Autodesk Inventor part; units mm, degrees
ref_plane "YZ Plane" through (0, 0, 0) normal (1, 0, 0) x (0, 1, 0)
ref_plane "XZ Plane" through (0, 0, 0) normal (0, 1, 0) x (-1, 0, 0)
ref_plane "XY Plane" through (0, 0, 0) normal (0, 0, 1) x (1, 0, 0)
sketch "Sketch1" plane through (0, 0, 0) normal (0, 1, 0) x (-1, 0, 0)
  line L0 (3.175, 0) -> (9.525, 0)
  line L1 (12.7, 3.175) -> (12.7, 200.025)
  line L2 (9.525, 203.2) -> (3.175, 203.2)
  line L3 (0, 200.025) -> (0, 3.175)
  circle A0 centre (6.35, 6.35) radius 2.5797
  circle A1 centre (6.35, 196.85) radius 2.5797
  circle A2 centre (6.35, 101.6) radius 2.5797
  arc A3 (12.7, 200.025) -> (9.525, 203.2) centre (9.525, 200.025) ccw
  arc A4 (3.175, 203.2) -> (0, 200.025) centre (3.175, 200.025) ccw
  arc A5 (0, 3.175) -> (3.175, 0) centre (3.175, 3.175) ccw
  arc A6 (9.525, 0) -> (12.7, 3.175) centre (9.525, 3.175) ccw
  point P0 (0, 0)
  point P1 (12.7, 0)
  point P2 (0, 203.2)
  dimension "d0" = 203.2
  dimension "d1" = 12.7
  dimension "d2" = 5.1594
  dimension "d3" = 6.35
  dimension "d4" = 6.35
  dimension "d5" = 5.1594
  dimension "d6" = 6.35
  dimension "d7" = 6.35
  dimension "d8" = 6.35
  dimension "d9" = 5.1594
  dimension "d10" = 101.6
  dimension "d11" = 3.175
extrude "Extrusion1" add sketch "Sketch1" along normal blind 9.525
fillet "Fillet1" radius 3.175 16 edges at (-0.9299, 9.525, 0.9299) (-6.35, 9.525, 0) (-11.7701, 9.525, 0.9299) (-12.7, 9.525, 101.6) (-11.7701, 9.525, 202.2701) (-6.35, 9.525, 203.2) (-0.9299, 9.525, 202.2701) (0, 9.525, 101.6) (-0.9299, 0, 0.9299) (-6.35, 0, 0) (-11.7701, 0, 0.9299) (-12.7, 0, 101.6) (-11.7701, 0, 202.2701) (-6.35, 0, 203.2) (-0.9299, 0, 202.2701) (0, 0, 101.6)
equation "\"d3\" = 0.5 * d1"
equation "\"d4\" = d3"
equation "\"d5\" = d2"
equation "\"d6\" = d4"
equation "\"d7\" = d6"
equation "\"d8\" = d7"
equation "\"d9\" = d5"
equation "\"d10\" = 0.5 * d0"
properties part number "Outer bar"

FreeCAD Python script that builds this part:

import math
import FreeCAD as App
import Part
import Sketcher

V = App.Vector
Q = App.Units.Quantity


def edges_at(feature, points):
    """Names of the edges that pass closest to the given points."""
    edges = feature.Shape.Edges
    near = lambda p: min(range(len(edges)), key=lambda i: edges[i].distToShape(Part.Vertex(*p))[0])
    return sorted({f"Edge{near(p) + 1}" for p in points})

doc = App.newDocument("Part")
params = doc.addObject("Spreadsheet::Sheet", "Params")
for row, (alias, value) in enumerate([
    ("sketch1_diameter", "0.203126 in"),
    ("sketch1_radius", "0.125 in"),
    ("sketch1_width", "0.25 in"),
    ("pad1_length", "0.375 in"),
    ("fillet_radius", "0.125 in"),
], start=1):
    params.set(f"A{row}", alias)
    params.set(f"B{row}", "=" + value)
    params.setAlias(f"B{row}", alias)

body = doc.addObject("PartDesign::Body", "Body")

# Sketch on XZ plane
sketch1 = body.newObject("Sketcher::SketchObject", "Sketch")
sketch1.AttachmentSupport = (doc.getObject("XZ_Plane"), [""])
sketch1.MapMode = "FlatFace"
sketch1.addGeometry([
    Part.ArcOfCircle(Part.Circle(V(-3.2, 3.2, 0), V(0, 0, 1), 3.2), math.radians(-90), math.radians(0)),  # 0
    Part.LineSegment(V(-3.2, 0, 0), V(-9.5, 0, 0)),  # 1
    Part.ArcOfCircle(Part.Circle(V(-9.5, 3.2, 0), V(0, 0, 1), 3.2), math.radians(180), math.radians(270)),  # 2
    Part.LineSegment(V(-12.7, 3.2, 0), V(-12.7, 200, 0)),  # 3
    Part.ArcOfCircle(Part.Circle(V(-9.5, 200, 0), V(0, 0, 1), 3.2), math.radians(90), math.radians(180)),  # 4
    Part.LineSegment(V(-9.5, 203.2, 0), V(-3.2, 203.2, 0)),  # 5
    Part.ArcOfCircle(Part.Circle(V(-3.2, 200, 0), V(0, 0, 1), 3.2), math.radians(0), math.radians(90)),  # 6
    Part.LineSegment(V(0, 200, 0), V(0, 3.2, 0)),  # 7
    Part.Circle(V(-6.3, 6.3, 0), V(0, 0, 1), 2.6),  # 8
    Part.Circle(V(-6.3, 101.6, 0), V(0, 0, 1), 2.6),  # 9
    Part.Circle(V(-6.3, 196.8, 0), V(0, 0, 1), 2.6),  # 10
], False)
sketch1.addConstraint([
    Sketcher.Constraint("Tangent", 0, 1, 1, 1),
    Sketcher.Constraint("Tangent", 1, 2, 2, 2),
    Sketcher.Constraint("Tangent", 2, 1, 3, 1),
    Sketcher.Constraint("Tangent", 3, 2, 4, 2),
    Sketcher.Constraint("Tangent", 4, 1, 5, 1),
    Sketcher.Constraint("Tangent", 5, 2, 6, 2),
    Sketcher.Constraint("Tangent", 6, 1, 7, 1),
    Sketcher.Constraint("Tangent", 7, 2, 0, 2),
    Sketcher.Constraint("Horizontal", 1),
    Sketcher.Constraint("Vertical", 3),
    Sketcher.Constraint("Horizontal", 5),
    Sketcher.Constraint("Vertical", 7),
    Sketcher.Constraint("Equal", 0, 2),
    Sketcher.Constraint("Equal", 2, 4),
    Sketcher.Constraint("Equal", 4, 6),
    Sketcher.Constraint("Equal", 8, 9),
    Sketcher.Constraint("Equal", 9, 10),
    Sketcher.Constraint("PointOnObject", 0, 1, -1),
    Sketcher.Constraint("PointOnObject", 6, 1, -2),
    Sketcher.Constraint("Vertical", 8, 3, 9, 3),
    Sketcher.Constraint("Vertical", 9, 3, 10, 3),
    Sketcher.Constraint("Diameter", 8, Q("0.203126 in")),
    Sketcher.Constraint("DistanceY", -1, 1, 9, 3, Q("4 in")),
    Sketcher.Constraint("DistanceY", -1, 1, 4, 1, Q("8 in")),
    Sketcher.Constraint("Radius", 0, Q("0.125 in")),
    Sketcher.Constraint("DistanceX", 1, 2, 1, 1, Q("0.25 in")),
    Sketcher.Constraint("DistanceX", 8, 3, -1, 1, Q("0.25 in")),
    Sketcher.Constraint("DistanceY", -1, 1, 8, 3, Q("0.25 in")),
    Sketcher.Constraint("DistanceY", 10, 3, 4, 1, Q("0.25 in")),
])
sketch1.setExpression("Constraints[21]", "Params.sketch1_diameter")
sketch1.setExpression("Constraints[24]", "Params.sketch1_radius")
sketch1.setExpression("Constraints[25]", "Params.sketch1_width")
pad1 = body.newObject("PartDesign::Pad", "Pad")
pad1.Profile = sketch1
pad1.setExpression("Length", "Params.pad1_length")
pad1.Reversed = True
doc.recompute()

fillet = body.newObject("PartDesign::Fillet", "Fillet")
fillet.Base = (pad1, edges_at(pad1, [
    (-0.93, 9.525, 0.93),
    (-6.35, 9.525, 0),
    (-11.77, 9.525, 0.93),
    (-12.7, 9.525, 101.6),
    (-11.77, 9.525, 202.27),
    (-6.35, 9.525, 203.2),
    (-0.93, 9.525, 202.27),
    (0, 9.525, 101.6),
    (-0.93, 0, 0.93),
    (-6.35, 0, 0),
    (-11.77, 0, 0.93),
    (-12.7, 0, 101.6),
    (-11.77, 0, 202.27),
    (-6.35, 0, 203.2),
    (-0.93, 0, 202.27),
    (0, 0, 101.6),
]))
fillet.setExpression("Radius", "Params.fillet_radius")

doc.recompute()
